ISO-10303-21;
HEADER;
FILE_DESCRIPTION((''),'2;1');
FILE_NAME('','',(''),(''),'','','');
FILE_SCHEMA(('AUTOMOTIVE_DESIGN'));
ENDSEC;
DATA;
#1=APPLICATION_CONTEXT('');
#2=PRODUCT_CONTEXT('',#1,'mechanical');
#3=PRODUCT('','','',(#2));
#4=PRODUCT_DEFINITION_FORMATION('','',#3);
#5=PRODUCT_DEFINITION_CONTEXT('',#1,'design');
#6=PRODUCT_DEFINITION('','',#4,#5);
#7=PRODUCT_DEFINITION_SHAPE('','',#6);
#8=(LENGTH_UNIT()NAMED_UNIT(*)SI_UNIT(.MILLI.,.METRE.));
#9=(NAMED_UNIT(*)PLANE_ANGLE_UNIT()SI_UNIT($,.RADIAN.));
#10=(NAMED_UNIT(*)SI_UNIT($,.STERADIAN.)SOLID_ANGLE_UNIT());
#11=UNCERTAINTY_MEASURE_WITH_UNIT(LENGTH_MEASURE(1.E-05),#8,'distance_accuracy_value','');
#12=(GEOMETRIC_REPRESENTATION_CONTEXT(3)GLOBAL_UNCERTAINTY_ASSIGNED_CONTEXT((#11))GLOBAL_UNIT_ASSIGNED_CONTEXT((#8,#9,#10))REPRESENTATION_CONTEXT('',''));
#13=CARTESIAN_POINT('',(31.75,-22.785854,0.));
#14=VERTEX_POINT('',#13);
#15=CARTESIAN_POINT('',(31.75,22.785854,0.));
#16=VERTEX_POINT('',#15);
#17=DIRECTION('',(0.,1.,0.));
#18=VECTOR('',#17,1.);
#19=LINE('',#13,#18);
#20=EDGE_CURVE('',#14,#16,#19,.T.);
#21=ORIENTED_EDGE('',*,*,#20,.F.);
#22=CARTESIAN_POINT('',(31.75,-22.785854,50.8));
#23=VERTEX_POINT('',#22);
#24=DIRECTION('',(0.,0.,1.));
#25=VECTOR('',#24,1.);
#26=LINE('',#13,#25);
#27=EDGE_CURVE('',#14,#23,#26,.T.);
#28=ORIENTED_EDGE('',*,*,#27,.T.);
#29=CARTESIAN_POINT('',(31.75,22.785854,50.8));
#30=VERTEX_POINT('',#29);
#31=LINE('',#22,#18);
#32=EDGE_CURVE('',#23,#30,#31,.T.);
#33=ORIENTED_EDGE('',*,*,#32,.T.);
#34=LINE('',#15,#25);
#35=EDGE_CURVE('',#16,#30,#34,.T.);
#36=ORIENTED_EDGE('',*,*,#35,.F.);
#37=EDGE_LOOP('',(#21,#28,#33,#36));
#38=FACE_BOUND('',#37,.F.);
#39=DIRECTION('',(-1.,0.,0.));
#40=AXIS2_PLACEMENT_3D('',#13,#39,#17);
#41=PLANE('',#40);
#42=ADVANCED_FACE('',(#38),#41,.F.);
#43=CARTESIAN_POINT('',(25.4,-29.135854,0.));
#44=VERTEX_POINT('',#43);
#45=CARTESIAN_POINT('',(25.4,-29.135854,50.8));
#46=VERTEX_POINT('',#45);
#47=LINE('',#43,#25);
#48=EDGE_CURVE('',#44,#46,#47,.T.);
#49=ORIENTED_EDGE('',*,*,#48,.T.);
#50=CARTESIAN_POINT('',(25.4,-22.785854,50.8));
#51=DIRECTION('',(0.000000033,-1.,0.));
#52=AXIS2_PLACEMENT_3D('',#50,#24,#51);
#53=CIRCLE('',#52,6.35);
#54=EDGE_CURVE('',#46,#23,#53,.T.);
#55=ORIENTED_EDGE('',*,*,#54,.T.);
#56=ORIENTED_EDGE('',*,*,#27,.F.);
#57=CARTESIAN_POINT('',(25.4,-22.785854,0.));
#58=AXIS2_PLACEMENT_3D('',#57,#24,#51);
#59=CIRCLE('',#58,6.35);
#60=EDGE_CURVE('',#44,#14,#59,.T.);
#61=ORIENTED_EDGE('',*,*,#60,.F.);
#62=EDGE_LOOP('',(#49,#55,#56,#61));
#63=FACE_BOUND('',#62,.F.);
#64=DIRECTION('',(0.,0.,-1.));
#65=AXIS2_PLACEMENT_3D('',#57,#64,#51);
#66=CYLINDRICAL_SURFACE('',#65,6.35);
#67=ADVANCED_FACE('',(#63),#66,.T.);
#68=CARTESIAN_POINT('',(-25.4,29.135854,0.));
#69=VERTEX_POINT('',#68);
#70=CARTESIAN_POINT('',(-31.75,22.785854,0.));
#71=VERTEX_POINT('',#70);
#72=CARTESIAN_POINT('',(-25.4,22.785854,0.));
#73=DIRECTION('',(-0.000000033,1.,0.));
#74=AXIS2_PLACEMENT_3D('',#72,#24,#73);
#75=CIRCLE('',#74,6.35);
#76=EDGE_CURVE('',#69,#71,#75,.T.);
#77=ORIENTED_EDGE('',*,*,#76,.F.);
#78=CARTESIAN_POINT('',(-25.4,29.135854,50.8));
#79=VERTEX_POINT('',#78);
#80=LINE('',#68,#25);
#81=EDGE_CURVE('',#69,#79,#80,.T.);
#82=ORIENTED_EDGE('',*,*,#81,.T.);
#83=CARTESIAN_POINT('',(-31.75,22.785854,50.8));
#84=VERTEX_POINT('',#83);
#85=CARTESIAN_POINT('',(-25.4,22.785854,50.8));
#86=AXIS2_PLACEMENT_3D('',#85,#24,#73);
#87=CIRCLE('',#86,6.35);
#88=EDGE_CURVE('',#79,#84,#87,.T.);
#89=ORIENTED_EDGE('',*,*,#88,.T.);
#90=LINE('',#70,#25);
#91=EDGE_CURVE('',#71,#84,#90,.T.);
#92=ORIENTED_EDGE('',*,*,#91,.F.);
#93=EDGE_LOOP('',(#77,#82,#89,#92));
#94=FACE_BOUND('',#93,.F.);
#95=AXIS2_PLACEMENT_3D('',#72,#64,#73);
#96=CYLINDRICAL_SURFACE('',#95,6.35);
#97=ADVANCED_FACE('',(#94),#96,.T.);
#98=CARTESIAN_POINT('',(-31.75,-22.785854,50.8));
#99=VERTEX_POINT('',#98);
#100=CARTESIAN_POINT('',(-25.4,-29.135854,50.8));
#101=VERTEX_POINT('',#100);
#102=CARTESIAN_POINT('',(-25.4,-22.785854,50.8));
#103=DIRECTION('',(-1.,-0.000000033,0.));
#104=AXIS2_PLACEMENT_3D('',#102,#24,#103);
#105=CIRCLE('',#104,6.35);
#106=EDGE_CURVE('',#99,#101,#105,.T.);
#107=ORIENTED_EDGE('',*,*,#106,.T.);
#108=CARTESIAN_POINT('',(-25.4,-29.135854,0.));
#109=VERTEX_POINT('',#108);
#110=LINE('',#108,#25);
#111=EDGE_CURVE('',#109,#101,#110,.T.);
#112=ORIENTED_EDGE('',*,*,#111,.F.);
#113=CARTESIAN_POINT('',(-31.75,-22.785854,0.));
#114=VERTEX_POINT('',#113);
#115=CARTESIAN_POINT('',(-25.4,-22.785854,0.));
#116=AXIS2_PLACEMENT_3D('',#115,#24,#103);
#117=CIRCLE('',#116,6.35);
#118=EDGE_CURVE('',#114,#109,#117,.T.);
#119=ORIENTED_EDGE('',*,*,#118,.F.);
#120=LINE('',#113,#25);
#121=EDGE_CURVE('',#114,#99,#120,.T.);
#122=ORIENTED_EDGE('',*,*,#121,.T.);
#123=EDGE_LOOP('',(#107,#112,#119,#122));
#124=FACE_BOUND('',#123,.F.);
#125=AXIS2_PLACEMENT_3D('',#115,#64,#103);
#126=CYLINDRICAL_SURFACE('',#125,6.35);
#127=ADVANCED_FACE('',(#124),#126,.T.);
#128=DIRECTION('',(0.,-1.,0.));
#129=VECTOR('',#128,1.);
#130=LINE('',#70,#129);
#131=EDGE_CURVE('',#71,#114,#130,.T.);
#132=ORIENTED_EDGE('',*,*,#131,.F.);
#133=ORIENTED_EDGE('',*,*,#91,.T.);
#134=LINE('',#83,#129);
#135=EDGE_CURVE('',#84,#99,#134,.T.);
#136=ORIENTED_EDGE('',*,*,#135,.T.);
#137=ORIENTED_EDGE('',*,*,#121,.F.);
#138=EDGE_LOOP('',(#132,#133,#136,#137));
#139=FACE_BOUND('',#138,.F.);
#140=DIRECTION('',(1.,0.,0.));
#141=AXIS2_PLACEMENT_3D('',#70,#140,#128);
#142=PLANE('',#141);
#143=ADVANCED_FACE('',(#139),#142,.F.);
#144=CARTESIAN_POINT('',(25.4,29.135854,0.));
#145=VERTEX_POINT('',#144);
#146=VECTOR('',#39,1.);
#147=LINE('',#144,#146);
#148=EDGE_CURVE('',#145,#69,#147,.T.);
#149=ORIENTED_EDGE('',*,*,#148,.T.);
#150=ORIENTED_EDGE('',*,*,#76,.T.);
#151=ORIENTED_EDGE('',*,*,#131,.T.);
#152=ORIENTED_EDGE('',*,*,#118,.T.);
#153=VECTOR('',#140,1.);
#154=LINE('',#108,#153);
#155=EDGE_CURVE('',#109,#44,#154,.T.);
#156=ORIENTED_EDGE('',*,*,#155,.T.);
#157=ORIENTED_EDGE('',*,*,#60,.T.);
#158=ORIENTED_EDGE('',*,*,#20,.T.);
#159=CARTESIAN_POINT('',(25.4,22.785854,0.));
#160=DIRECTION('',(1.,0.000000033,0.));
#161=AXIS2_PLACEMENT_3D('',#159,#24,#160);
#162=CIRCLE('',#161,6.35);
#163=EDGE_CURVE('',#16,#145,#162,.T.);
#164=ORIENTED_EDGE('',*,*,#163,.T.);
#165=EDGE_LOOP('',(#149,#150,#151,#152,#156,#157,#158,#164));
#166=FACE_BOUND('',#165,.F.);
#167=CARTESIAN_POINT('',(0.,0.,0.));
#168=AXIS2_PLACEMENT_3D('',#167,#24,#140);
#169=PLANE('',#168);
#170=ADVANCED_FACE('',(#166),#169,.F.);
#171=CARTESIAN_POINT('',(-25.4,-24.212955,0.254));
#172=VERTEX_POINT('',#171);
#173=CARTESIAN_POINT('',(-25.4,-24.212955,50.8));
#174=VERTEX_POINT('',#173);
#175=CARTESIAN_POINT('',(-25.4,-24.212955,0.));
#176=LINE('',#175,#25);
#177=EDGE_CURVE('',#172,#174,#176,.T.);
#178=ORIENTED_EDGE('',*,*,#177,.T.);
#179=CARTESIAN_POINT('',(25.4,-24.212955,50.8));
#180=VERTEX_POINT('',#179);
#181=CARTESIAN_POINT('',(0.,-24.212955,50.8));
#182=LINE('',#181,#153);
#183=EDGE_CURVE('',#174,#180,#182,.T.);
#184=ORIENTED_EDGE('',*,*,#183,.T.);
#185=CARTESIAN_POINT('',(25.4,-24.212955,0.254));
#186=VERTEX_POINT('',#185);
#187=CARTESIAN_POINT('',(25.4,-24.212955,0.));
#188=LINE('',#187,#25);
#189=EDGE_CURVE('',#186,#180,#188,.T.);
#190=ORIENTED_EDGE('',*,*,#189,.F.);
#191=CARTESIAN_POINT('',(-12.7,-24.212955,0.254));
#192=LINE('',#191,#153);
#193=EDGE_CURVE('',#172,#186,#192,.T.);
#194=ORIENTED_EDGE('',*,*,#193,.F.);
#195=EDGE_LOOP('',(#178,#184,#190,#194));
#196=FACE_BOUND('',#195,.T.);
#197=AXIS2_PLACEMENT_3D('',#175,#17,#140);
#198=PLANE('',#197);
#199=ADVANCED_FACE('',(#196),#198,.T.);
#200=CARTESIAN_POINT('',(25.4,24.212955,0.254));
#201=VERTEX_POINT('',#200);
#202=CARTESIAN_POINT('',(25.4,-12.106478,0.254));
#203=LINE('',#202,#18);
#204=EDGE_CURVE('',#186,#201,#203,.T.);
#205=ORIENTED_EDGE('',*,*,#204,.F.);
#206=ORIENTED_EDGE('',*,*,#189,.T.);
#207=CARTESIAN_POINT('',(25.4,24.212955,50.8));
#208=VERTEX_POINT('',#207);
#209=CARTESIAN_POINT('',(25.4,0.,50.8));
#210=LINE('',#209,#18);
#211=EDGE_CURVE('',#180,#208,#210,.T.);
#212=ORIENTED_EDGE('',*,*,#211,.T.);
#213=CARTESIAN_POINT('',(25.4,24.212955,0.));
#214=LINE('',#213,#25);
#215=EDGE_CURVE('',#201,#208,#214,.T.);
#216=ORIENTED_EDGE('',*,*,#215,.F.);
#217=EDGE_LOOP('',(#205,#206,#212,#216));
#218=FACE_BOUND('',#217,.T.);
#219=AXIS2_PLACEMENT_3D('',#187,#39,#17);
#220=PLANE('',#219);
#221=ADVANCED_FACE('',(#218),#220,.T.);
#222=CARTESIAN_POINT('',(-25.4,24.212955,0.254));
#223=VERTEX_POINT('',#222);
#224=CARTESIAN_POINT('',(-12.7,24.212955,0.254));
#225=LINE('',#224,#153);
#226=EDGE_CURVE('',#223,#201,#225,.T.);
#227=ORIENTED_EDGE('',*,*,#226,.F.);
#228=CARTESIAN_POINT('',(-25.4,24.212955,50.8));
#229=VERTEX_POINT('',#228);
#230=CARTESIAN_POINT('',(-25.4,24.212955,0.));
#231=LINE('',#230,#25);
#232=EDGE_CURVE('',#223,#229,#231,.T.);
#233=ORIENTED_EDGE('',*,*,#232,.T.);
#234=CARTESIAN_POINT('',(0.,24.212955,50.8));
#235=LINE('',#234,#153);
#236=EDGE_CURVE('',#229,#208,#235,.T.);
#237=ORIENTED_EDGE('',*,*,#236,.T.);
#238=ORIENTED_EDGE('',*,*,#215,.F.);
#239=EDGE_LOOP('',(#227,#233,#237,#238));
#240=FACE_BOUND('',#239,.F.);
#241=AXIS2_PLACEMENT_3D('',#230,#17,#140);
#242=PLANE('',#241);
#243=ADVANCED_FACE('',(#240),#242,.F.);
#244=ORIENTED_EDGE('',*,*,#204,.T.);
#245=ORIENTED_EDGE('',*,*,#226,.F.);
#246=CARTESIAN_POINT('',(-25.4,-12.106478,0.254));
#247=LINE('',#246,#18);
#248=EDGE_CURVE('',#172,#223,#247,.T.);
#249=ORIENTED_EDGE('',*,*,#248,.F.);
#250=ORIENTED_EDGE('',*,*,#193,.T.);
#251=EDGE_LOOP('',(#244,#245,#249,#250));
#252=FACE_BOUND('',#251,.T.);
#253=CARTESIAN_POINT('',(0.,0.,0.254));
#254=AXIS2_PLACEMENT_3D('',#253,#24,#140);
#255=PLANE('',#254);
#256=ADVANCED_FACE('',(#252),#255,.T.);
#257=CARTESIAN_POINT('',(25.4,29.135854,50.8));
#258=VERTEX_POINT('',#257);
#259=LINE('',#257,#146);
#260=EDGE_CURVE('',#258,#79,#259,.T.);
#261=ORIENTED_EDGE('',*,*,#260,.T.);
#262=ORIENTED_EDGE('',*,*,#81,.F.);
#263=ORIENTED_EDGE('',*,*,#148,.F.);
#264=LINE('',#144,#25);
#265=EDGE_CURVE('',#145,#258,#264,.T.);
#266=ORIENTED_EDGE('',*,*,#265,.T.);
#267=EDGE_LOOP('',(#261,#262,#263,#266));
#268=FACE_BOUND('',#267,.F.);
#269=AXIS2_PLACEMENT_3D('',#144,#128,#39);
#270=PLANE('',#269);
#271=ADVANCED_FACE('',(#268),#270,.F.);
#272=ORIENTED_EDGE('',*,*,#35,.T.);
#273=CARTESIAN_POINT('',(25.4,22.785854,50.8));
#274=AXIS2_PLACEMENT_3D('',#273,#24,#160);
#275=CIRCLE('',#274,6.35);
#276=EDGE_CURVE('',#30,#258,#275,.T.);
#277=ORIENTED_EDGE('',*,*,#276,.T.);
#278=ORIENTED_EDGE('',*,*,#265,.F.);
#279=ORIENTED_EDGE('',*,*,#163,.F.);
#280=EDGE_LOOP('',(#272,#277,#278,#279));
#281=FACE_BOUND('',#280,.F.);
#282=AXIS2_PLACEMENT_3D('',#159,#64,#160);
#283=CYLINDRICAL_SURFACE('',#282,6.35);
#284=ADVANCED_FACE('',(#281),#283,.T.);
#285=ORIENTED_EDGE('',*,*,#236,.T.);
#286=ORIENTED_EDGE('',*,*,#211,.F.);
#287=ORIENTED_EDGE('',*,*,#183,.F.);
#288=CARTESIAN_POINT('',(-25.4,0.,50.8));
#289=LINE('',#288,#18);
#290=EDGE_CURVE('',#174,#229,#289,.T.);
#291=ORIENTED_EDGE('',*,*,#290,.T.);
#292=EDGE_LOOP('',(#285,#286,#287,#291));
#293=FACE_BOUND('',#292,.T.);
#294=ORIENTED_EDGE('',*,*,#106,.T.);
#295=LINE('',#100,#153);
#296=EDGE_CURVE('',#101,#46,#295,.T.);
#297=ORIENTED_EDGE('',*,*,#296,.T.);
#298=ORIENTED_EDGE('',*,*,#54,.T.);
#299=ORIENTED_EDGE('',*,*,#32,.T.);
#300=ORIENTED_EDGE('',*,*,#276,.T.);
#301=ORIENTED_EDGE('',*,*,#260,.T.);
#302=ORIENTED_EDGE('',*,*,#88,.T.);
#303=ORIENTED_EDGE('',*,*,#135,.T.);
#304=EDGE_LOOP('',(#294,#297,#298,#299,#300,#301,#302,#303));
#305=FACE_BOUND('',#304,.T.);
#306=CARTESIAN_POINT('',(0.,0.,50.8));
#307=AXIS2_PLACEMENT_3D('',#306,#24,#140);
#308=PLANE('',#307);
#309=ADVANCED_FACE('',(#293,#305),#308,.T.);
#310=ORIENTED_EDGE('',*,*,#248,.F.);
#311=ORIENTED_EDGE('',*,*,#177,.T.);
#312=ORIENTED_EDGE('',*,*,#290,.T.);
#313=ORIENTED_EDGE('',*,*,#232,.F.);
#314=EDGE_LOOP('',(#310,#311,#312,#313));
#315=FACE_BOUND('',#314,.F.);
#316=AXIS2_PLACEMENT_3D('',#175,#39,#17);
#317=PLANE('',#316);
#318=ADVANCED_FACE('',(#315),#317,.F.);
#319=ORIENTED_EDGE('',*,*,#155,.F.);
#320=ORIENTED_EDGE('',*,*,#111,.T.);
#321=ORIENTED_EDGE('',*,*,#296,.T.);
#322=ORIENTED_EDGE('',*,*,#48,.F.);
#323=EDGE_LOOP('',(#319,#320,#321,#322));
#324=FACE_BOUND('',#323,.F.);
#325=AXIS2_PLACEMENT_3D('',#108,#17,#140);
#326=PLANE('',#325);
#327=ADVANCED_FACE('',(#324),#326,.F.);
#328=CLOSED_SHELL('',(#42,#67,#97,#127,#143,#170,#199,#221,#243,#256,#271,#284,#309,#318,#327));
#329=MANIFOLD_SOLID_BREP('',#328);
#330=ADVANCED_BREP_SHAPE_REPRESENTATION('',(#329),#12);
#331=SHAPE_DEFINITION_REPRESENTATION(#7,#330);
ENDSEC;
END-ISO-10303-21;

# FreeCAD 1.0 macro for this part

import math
import FreeCAD as App
import Part
import Sketcher

V = App.Vector
Q = App.Units.Quantity

doc = App.newDocument("Part")
body = doc.addObject("PartDesign::Body", "Body")

# Sketch on XY plane
sketch1 = body.newObject("Sketcher::SketchObject", "Sketch")
sketch1.AttachmentSupport = (doc.getObject("XY_Plane"), [""])
sketch1.MapMode = "FlatFace"
sketch1.addGeometry([
    Part.ArcOfCircle(Part.Circle(V(25.4, 22.785854, 0), V(0, 0, 1), 6.35), math.radians(0.000002), math.radians(89.999998)),  # 0
    Part.LineSegment(V(25.4, 29.135854, 0), V(-25.4, 29.135854, 0)),  # 1
    Part.ArcOfCircle(Part.Circle(V(-25.4, 22.785854, 0), V(0, 0, 1), 6.35), math.radians(90.000002), math.radians(179.999998)),  # 2
    Part.LineSegment(V(-31.75, 22.785854, 0), V(-31.75, -22.785854, 0)),  # 3
    Part.ArcOfCircle(Part.Circle(V(-25.4, -22.785854, 0), V(0, 0, 1), 6.35), math.radians(-179.999998), math.radians(-90.000002)),  # 4
    Part.LineSegment(V(-25.4, -29.135854, 0), V(25.4, -29.135854, 0)),  # 5
    Part.ArcOfCircle(Part.Circle(V(25.4, -22.785854, 0), V(0, 0, 1), 6.35), math.radians(-89.999998), math.radians(-0.000002)),  # 6
    Part.LineSegment(V(31.75, -22.785854, 0), V(31.75, 22.785854, 0)),  # 7
    Part.LineSegment(V(25.4, -24.212955, 0), V(-25.4, -24.212955, 0)),  # 8
    Part.LineSegment(V(-25.4, -24.212955, 0), V(-25.4, 24.212955, 0)),  # 9
    Part.LineSegment(V(-25.4, 24.212955, 0), V(25.4, 24.212955, 0)),  # 10
    Part.LineSegment(V(25.4, 24.212955, 0), V(25.4, -24.212955, 0)),  # 11
], False)
sketch1.addConstraint([
    Sketcher.Constraint("Tangent", 0, 2, 1, 1),
    Sketcher.Constraint("Tangent", 1, 2, 2, 1),
    Sketcher.Constraint("Tangent", 2, 2, 3, 1),
    Sketcher.Constraint("Tangent", 3, 2, 4, 1),
    Sketcher.Constraint("Tangent", 4, 2, 5, 1),
    Sketcher.Constraint("Tangent", 5, 2, 6, 1),
    Sketcher.Constraint("Tangent", 6, 2, 7, 1),
    Sketcher.Constraint("Tangent", 7, 2, 0, 1),
    Sketcher.Constraint("Coincident", 8, 2, 9, 1),
    Sketcher.Constraint("Coincident", 9, 2, 10, 1),
    Sketcher.Constraint("Coincident", 10, 2, 11, 1),
    Sketcher.Constraint("Coincident", 11, 2, 8, 1),
    Sketcher.Constraint("Horizontal", 1),
    Sketcher.Constraint("Vertical", 3),
    Sketcher.Constraint("Horizontal", 5),
    Sketcher.Constraint("Vertical", 7),
    Sketcher.Constraint("Horizontal", 8),
    Sketcher.Constraint("Vertical", 9),
    Sketcher.Constraint("Horizontal", 10),
    Sketcher.Constraint("Vertical", 11),
    Sketcher.Constraint("Equal", 0, 2),
    Sketcher.Constraint("Equal", 2, 4),
    Sketcher.Constraint("Equal", 4, 6),
    Sketcher.Constraint("Symmetric", 0, 3, 4, 3, -1, 1),
    Sketcher.Constraint("Symmetric", 8, 2, 10, 2, -1, 1),
    Sketcher.Constraint("Vertical", 4, 2, 8, 2),
    Sketcher.Constraint("DistanceX", 1, 2, 1, 1, Q("2 in")),
    Sketcher.Constraint("Radius", 0, Q("0.25 in")),
    Sketcher.Constraint("DistanceY", 9, 1, 9, 2, 48.42591),
    Sketcher.Constraint("DistanceY", 8, 2, 4, 3, 1.427101),
])
pad1 = body.newObject("PartDesign::Pad", "Pad")
pad1.Profile = sketch1
pad1.Length = Q("2 in")

# Sketch on XY plane
sketch2 = body.newObject("Sketcher::SketchObject", "Sketch001")
sketch2.AttachmentSupport = (doc.getObject("XY_Plane"), [""])
sketch2.MapMode = "FlatFace"
sketch2.addGeometry([
    Part.LineSegment(V(-25.777696, 24.885392, 0), V(-25.777696, -24.885392, 0)),
    Part.LineSegment(V(-25.777696, -24.885392, 0), V(25.777696, -24.885392, 0)),
    Part.LineSegment(V(25.777696, -24.885392, 0), V(25.777696, 24.885392, 0)),
    Part.LineSegment(V(25.777696, 24.885392, 0), V(-25.777696, 24.885392, 0)),
], False)
sketch2.addConstraint([
    Sketcher.Constraint("Coincident", 0, 2, 1, 1),
    Sketcher.Constraint("Coincident", 1, 2, 2, 1),
    Sketcher.Constraint("Coincident", 2, 2, 3, 1),
    Sketcher.Constraint("Coincident", 3, 2, 0, 1),
    Sketcher.Constraint("Vertical", 0),
    Sketcher.Constraint("Horizontal", 1),
    Sketcher.Constraint("Vertical", 2),
    Sketcher.Constraint("Horizontal", 3),
    Sketcher.Constraint("Symmetric", 0, 2, 2, 2, -1, 1),
    Sketcher.Constraint("DistanceX", 1, 1, 1, 2, 51.555392),
    Sketcher.Constraint("DistanceY", 0, 2, 0, 1, 49.770784),
])
pad2 = body.newObject("PartDesign::Pad", "Pad001")
pad2.Profile = sketch2
pad2.Length = Q("0.01 in")

doc.recompute()
